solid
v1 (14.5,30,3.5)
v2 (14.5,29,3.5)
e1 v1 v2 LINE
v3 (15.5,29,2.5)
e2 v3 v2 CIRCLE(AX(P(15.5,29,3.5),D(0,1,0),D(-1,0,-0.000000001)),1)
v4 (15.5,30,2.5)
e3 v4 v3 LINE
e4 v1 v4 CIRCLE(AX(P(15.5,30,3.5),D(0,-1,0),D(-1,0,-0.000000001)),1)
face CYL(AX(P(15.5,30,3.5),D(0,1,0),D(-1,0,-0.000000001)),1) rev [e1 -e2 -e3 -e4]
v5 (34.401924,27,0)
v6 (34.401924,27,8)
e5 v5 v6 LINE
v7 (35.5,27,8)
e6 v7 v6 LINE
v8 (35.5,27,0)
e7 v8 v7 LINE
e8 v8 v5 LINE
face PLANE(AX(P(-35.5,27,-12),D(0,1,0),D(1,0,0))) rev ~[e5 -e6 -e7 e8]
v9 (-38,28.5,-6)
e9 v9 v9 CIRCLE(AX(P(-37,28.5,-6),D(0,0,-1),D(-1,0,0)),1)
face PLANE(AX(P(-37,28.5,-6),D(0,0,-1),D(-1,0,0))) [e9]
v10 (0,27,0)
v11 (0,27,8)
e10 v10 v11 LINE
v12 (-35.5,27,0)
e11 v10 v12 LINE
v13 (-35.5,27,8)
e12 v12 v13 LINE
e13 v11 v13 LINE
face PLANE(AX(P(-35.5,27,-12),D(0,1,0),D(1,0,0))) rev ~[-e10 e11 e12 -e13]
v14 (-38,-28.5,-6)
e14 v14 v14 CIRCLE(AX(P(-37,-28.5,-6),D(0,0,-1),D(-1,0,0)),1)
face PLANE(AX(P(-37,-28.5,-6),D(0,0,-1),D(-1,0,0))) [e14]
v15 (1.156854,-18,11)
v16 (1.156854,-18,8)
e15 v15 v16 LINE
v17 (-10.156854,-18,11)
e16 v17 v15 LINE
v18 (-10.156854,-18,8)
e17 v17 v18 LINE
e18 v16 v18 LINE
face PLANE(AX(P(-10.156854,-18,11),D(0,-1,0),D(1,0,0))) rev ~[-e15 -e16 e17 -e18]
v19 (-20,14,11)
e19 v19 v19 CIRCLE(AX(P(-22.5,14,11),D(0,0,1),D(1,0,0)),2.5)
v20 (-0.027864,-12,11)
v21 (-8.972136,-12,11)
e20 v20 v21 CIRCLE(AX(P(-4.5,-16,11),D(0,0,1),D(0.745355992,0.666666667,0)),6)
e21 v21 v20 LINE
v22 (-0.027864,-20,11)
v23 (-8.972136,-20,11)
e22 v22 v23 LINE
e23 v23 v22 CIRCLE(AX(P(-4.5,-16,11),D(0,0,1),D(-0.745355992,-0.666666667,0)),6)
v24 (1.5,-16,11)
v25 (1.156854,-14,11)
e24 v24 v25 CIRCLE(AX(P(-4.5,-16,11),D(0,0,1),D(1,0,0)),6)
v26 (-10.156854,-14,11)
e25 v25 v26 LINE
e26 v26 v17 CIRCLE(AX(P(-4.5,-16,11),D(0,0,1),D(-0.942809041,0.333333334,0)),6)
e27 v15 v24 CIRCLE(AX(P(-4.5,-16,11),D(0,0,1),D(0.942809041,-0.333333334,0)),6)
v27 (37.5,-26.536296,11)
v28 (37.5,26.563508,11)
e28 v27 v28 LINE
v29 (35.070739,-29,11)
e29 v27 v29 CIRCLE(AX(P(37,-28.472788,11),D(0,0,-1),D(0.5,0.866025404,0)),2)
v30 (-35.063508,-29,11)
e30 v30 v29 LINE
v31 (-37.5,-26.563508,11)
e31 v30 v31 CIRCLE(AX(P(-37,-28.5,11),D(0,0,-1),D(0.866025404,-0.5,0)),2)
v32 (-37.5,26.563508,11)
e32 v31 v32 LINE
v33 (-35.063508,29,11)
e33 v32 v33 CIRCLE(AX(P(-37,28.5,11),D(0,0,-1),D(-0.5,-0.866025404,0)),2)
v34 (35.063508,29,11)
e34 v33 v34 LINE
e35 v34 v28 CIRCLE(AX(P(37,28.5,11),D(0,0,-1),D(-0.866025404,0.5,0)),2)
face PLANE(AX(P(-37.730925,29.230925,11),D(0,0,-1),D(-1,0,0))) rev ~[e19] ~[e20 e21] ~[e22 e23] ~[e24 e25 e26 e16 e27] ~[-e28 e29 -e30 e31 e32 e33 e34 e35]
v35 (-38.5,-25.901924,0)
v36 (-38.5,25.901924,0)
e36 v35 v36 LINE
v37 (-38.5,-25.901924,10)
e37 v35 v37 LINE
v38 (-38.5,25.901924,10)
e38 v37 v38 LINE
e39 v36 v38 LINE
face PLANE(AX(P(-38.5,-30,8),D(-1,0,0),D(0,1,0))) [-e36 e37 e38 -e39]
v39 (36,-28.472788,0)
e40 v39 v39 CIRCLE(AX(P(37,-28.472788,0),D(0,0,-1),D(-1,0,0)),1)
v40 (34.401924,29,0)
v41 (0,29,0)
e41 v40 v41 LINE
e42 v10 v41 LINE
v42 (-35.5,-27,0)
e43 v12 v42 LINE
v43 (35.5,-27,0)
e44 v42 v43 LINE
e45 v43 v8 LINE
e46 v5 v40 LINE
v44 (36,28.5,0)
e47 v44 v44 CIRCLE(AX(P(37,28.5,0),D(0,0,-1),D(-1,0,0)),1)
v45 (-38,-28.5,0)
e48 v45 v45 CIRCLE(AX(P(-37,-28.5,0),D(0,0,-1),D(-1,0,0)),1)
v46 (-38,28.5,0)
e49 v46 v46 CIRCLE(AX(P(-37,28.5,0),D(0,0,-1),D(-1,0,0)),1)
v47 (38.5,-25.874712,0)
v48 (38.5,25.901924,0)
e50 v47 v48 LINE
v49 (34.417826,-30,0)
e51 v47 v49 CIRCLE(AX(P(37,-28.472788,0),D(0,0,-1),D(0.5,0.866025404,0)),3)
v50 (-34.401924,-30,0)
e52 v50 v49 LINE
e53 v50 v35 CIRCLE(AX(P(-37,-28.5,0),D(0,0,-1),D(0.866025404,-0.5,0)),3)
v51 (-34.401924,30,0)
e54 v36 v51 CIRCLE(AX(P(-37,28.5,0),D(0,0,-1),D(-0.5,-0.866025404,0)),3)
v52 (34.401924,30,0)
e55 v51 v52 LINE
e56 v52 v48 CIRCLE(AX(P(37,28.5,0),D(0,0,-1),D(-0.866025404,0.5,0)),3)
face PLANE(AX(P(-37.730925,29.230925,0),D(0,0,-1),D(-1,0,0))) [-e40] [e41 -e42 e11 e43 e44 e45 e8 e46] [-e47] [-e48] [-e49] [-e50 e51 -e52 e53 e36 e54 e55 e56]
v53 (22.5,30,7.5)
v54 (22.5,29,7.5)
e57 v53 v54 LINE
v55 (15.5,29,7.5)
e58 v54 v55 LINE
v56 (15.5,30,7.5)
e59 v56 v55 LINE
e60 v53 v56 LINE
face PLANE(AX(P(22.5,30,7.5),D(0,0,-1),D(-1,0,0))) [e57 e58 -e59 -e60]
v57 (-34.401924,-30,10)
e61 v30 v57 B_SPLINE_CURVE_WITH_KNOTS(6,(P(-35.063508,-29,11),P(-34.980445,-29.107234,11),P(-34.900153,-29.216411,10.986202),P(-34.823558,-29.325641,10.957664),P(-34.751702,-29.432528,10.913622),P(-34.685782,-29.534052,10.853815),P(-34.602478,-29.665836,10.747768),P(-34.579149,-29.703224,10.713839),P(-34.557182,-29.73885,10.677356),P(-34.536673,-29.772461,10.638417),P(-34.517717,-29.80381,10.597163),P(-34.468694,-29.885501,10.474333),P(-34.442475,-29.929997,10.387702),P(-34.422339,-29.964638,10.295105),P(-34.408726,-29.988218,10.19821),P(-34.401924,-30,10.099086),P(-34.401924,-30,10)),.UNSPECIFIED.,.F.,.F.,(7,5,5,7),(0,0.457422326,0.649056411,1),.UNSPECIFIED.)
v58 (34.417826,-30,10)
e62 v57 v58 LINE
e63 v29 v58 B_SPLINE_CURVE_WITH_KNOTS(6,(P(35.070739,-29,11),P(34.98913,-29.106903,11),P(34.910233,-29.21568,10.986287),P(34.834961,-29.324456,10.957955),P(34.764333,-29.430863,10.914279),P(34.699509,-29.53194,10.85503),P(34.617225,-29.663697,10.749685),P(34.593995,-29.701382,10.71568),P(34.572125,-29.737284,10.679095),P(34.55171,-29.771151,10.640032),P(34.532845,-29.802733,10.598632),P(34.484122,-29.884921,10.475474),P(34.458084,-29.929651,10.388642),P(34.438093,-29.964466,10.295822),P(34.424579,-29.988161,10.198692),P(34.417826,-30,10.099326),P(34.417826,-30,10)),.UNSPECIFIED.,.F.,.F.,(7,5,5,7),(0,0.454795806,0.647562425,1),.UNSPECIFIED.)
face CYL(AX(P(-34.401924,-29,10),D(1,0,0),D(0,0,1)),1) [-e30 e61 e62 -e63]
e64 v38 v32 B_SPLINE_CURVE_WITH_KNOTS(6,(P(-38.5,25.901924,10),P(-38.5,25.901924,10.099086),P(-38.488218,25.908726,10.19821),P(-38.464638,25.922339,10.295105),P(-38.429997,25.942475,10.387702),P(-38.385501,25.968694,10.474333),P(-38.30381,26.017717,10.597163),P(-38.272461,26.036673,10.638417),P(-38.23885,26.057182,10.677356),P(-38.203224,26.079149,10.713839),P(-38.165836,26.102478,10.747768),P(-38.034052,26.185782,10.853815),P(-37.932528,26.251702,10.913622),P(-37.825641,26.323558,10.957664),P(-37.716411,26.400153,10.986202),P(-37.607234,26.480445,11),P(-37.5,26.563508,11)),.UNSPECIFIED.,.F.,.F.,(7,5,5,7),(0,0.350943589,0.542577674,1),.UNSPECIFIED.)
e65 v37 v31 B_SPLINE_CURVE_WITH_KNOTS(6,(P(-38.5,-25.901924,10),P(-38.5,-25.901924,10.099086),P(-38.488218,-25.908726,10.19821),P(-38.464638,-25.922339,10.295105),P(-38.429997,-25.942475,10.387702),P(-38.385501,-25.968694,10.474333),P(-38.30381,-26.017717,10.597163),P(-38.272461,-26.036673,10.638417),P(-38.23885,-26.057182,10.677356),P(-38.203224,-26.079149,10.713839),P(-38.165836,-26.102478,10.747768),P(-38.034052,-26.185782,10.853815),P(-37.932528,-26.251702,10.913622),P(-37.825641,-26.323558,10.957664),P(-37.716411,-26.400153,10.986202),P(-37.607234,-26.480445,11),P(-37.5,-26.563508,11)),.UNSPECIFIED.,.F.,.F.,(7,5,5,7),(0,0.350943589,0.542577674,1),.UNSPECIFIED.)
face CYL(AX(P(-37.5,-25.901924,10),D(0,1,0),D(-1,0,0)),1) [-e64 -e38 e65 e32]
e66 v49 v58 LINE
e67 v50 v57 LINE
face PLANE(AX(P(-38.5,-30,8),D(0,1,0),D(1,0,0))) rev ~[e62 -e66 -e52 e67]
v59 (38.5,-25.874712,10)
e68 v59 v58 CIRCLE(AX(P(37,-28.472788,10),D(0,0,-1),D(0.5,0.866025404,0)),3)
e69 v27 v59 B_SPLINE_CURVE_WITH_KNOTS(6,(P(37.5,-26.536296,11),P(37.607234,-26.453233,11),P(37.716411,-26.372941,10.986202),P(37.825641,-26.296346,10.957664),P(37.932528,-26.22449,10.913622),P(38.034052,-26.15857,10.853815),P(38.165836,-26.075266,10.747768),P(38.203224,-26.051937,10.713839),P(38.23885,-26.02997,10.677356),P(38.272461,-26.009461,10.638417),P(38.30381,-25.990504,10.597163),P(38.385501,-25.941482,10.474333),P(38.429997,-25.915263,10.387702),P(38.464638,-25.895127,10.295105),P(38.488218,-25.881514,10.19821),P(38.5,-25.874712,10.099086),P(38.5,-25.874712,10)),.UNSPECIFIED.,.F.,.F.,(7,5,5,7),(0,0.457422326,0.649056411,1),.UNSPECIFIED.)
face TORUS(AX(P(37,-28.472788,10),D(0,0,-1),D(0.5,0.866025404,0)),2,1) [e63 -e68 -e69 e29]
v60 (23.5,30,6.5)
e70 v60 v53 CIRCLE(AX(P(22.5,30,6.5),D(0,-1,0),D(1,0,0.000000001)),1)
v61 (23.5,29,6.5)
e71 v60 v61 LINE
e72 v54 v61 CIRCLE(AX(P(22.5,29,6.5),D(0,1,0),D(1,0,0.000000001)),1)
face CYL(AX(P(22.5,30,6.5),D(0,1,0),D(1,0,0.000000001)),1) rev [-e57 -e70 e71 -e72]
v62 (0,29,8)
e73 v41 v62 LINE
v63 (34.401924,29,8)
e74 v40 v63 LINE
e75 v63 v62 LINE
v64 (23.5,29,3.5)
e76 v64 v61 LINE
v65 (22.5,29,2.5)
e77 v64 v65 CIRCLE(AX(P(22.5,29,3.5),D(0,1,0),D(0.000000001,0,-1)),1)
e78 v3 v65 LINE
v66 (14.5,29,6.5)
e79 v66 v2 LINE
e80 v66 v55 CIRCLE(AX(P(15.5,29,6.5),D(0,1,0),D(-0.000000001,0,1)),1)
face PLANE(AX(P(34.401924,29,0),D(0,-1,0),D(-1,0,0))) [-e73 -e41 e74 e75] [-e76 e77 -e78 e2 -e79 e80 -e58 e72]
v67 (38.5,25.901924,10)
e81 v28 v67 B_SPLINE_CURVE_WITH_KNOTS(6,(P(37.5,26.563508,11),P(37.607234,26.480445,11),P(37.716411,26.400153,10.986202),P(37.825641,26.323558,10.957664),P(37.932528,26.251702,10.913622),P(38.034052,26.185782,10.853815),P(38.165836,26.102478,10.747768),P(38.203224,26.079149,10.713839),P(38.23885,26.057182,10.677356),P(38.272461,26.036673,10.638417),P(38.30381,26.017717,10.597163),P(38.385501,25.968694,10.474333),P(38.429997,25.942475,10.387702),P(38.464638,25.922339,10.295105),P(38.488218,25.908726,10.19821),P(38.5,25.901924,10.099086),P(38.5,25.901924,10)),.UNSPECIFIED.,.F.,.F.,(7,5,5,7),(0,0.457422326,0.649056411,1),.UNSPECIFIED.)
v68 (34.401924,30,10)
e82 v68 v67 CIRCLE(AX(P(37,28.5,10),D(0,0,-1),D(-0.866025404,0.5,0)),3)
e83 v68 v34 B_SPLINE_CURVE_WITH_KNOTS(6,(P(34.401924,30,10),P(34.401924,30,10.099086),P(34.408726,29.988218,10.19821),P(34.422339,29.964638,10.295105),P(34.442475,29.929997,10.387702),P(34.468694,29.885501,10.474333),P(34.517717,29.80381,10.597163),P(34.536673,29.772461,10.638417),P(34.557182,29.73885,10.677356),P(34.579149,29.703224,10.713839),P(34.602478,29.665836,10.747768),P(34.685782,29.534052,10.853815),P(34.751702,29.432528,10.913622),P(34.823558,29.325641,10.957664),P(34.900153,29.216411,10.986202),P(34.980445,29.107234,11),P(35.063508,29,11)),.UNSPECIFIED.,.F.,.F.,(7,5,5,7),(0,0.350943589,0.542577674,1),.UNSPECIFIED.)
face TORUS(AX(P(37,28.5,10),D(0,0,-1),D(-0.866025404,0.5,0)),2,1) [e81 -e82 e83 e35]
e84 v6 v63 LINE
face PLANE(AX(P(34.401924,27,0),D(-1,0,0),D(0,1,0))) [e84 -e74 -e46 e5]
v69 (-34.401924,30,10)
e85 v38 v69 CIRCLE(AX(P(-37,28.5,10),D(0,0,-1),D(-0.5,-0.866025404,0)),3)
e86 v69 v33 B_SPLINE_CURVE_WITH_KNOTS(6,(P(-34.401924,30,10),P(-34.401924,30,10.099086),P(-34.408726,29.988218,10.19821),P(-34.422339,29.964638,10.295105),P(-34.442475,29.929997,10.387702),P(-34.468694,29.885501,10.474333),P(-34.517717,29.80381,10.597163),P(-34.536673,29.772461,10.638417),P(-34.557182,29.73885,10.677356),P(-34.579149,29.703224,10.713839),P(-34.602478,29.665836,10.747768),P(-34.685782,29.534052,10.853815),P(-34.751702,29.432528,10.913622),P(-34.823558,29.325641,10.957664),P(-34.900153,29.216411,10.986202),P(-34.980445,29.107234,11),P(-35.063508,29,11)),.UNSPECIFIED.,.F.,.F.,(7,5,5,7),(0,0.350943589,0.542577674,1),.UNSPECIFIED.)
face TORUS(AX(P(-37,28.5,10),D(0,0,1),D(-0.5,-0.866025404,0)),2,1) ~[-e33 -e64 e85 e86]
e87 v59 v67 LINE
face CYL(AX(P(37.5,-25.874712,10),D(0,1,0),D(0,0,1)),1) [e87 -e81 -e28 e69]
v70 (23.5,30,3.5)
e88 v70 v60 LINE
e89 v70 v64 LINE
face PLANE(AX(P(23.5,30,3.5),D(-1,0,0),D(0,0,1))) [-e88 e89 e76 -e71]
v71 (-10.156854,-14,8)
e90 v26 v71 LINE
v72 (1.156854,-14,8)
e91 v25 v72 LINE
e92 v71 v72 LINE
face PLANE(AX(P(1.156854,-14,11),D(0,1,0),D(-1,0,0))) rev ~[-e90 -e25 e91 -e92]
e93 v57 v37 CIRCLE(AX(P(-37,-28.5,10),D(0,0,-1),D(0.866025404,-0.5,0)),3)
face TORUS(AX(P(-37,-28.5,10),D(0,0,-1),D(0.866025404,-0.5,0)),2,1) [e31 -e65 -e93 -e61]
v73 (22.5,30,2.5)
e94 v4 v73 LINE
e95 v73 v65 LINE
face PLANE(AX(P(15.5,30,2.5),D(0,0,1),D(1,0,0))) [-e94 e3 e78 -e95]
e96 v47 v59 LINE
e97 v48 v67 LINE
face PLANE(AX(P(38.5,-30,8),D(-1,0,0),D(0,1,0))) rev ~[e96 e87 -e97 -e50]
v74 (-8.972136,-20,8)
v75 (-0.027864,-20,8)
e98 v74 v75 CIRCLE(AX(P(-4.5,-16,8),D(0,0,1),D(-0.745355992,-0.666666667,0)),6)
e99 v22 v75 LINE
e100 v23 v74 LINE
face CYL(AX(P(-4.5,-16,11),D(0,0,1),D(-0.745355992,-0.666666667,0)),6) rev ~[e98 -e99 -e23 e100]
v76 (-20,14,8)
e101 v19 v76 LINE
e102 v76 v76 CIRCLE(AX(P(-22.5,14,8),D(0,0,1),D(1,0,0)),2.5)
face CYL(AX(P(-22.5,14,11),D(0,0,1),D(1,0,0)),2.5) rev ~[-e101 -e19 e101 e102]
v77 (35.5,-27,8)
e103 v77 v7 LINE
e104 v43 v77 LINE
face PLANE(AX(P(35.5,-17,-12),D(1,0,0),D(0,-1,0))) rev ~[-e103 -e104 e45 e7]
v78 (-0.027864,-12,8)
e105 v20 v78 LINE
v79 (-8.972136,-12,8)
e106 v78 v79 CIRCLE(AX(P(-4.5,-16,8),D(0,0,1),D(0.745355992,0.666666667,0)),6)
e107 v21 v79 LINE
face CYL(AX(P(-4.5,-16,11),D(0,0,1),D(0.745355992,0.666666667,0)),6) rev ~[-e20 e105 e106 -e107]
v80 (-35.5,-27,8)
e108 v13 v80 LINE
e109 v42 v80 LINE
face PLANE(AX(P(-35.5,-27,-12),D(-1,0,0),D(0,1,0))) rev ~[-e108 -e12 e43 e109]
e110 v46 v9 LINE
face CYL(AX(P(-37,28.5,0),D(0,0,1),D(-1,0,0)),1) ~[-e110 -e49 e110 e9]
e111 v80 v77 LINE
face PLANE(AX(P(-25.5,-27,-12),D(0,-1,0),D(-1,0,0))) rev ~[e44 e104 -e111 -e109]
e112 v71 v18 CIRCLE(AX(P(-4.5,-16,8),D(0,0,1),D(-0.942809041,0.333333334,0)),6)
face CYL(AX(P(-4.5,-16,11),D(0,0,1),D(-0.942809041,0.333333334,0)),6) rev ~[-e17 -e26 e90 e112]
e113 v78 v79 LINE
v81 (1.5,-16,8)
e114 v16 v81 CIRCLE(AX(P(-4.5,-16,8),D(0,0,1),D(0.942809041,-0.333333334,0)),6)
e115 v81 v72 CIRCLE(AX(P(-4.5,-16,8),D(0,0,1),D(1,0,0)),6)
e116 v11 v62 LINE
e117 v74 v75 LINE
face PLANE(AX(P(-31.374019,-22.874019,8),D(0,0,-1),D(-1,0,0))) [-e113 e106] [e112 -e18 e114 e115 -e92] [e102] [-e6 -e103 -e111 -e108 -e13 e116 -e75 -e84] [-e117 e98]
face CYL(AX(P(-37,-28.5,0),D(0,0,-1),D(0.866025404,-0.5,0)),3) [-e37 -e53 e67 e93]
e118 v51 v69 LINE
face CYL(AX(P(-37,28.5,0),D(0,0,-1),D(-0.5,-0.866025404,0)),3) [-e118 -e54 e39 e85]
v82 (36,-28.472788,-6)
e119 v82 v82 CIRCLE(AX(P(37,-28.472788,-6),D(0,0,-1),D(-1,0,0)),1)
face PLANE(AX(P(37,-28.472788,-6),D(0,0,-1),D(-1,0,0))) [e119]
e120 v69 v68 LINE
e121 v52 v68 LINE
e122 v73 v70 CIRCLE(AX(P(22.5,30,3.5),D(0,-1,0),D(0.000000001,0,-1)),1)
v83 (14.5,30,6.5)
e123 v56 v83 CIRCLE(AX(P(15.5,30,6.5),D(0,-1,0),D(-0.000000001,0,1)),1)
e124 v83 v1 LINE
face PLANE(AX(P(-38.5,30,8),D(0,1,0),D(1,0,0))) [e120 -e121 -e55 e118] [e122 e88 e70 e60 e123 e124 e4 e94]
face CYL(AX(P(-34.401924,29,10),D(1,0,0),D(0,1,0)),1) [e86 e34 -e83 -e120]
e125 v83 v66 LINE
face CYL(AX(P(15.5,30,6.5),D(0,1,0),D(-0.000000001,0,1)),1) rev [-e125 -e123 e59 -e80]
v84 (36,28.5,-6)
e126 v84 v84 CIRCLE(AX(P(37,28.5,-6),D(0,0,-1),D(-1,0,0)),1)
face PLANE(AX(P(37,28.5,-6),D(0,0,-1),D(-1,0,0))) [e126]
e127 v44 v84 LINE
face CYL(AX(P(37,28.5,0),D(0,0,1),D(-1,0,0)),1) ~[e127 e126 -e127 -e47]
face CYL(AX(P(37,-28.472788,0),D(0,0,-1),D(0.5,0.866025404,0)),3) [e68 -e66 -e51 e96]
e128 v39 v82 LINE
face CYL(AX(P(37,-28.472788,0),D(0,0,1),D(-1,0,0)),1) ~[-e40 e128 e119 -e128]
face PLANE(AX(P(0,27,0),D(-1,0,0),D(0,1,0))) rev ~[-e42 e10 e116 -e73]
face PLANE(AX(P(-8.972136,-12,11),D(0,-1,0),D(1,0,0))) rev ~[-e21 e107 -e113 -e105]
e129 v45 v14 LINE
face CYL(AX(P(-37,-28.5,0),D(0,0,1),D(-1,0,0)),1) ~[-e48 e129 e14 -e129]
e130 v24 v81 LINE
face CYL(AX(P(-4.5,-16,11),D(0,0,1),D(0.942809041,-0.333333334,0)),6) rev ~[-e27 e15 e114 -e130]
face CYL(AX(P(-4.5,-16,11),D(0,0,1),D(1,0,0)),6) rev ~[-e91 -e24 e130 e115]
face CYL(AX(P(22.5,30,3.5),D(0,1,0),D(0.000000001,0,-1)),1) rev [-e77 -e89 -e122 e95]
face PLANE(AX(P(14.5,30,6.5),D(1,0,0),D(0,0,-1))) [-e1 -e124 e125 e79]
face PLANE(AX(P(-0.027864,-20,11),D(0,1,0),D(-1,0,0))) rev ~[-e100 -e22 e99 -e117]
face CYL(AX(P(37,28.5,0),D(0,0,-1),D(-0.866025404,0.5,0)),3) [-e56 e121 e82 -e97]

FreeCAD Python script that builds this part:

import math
import FreeCAD as App
import Part
import Sketcher
from FreeCAD import Vector


def edges_at(feature, points):
    """Names of the edges that pass closest to the given points."""
    edges = feature.Shape.Edges
    near = lambda p: min(range(len(edges)), key=lambda i: edges[i].distToShape(Part.Vertex(*p))[0])
    return sorted({f"Edge{near(p) + 1}" for p in points})


def add_polygon(sketch, points):
    """Adds a closed chain of lines whose ends are joined by coincident constraints."""
    first, n = sketch.GeometryCount, len(points)
    for a, b in zip(points, points[1:] + points[:1]):
        sketch.addGeometry(Part.LineSegment(App.Vector(*a, 0), App.Vector(*b, 0)), False)
    for i in range(n):
        sketch.addConstraint(Sketcher.Constraint("Coincident", first + i, 2, first + (i + 1) % n, 1))

doc = App.newDocument("Part")
params = doc.addObject("Spreadsheet::Sheet", "Params")
for row, (alias, value) in enumerate([
    ("sketch1_radius", "10 mm"),
    ("sketch1_diameter", "3.5 mm"),
    ("pad1_length", "8 mm"),
    ("pad1_length2", "12 mm"),
    ("sketch2_radius", "10 mm"),
    ("sketch2_diameter", "3.5 mm"),
    ("pad2_length", "8 mm"),
    ("pad2_length2", "12 mm"),
    ("sketch3_radius", "10 mm"),
    ("sketch3_diameter", "3.5 mm"),
    ("pad3_length", "8 mm"),
    ("pad3_length2", "12 mm"),
    ("sketch4_radius", "10 mm"),
    ("sketch4_diameter", "3.5 mm"),
    ("pad4_length", "8 mm"),
    ("pad4_length2", "12 mm"),
    ("sketch5_width", "77 mm"),
    ("sketch5_width2", "71 mm"),
    ("sketch5_height", "60 mm"),
    ("sketch5_height2", "54 mm"),
    ("pad5_length", "8 mm"),
    ("sketch6_width", "77 mm"),
    ("sketch6_height", "60 mm"),
    ("pad6_length", "3 mm"),
    ("sketch7_radius", "10 mm"),
    ("pocket1_length", "20 mm"),
    ("sketch8_radius", "1 mm"),
    ("sketch8_width", "7 mm"),
    ("sketch8_height", "3 mm"),
    ("pocket2_length", "13 mm"),
    ("sketch9_radius", "6 mm"),
    ("pocket3_length", "10 mm"),
    ("sketch10_diameter", "2 mm"),
    ("pad7_length", "6 mm"),
    ("pad7_length2", "7 mm"),
    ("fillet_radius", "1 mm"),
    ("sketch11_radius", "3 mm"),
    ("sketch11_radius2", "1 mm"),
    ("pad8_length", "11 mm"),
    ("fillet2_radius", "1 mm"),
    ("sketch12_diameter", "5 mm"),
    ("pocket4_length", "10 mm"),
    ("sketch13_height", "2 mm"),
    ("pocket5_length", "8 mm"),
], start=1):
    params.set(f"A{row}", alias)
    params.set(f"B{row}", "=" + value)
    params.setAlias(f"B{row}", alias)

body = doc.addObject("PartDesign::Body", "Body")

sketch1 = body.newObject("Sketcher::SketchObject", "Sketch")
sketch1.AttachmentSupport = (doc.getObject("XY_Plane"), [""])
sketch1.MapMode = "FlatFace"
sketch1.addGeometry(Part.LineSegment(Vector(-35.5, -27, 0), Vector(-25.5, -27, 0)), False)
sketch1.addGeometry(Part.ArcOfCircle(Part.Circle(Vector(-35.5, -27, 0), Vector(0, 0, 1), 10), math.radians(0), math.radians(90)), False)
sketch1.addGeometry(Part.LineSegment(Vector(-35.5, -17, 0), Vector(-35.5, -27, 0)), False)
sketch1.addGeometry(Part.Circle(Vector(-33, -23, 0), Vector(0, 0, 1), 1.8), False)
sketch1.addConstraint(Sketcher.Constraint("Coincident", 0, 2, 1, 1))
sketch1.addConstraint(Sketcher.Constraint("Coincident", 1, 2, 2, 1))
sketch1.addConstraint(Sketcher.Constraint("Coincident", 2, 2, 0, 1))
sketch1.addConstraint(Sketcher.Constraint("Horizontal", 0))
sketch1.addConstraint(Sketcher.Constraint("Vertical", 2))
sketch1.addConstraint(Sketcher.Constraint("Coincident", 2, 2, 1, 3))
sketch1.addConstraint(Sketcher.Constraint("Radius", 1, 10.0))
sketch1.addConstraint(Sketcher.Constraint("Diameter", 3, 3.5))
sketch1.addConstraint(Sketcher.Constraint("DistanceY", 1, 3, -1, 1, 27.0))
sketch1.addConstraint(Sketcher.Constraint("DistanceX", 3, 3, -1, 1, 33.0))
sketch1.addConstraint(Sketcher.Constraint("DistanceY", 3, 3, -1, 1, 23.0))
sketch1.addConstraint(Sketcher.Constraint("DistanceX", 1, 3, -1, 1, 35.5))
sketch1.setExpression("Constraints[6]", "Params.sketch1_radius")
sketch1.setExpression("Constraints[7]", "Params.sketch1_diameter")
pad1 = body.newObject("PartDesign::Pad", "Pad")
pad1.Profile = sketch1
pad1.Type = "TwoLengths"
pad1.setExpression("Length", "Params.pad1_length")
pad1.setExpression("Length2", "Params.pad1_length2")
body2 = doc.addObject("PartDesign::Body", "Body001")

sketch2 = body2.newObject("Sketcher::SketchObject", "Sketch001")
sketch2.AttachmentSupport = (doc.getObject("XY_Plane001"), [""])
sketch2.MapMode = "FlatFace"
sketch2.addGeometry(Part.LineSegment(Vector(35.5, 17, 0), Vector(35.5, 27, 0)), False)
sketch2.addGeometry(Part.LineSegment(Vector(35.5, 27, 0), Vector(25.5, 27, 0)), False)
sketch2.addGeometry(Part.ArcOfCircle(Part.Circle(Vector(35.5, 27, 0), Vector(0, 0, 1), 10), math.radians(180), math.radians(270)), False)
sketch2.addGeometry(Part.Circle(Vector(33, 21, 0), Vector(0, 0, 1), 1.8), False)
sketch2.addConstraint(Sketcher.Constraint("Coincident", 0, 2, 1, 1))
sketch2.addConstraint(Sketcher.Constraint("Coincident", 1, 2, 2, 1))
sketch2.addConstraint(Sketcher.Constraint("Coincident", 2, 2, 0, 1))
sketch2.addConstraint(Sketcher.Constraint("Vertical", 0))
sketch2.addConstraint(Sketcher.Constraint("Horizontal", 1))
sketch2.addConstraint(Sketcher.Constraint("Coincident", 0, 2, 2, 3))
sketch2.addConstraint(Sketcher.Constraint("Radius", 2, 10.0))
sketch2.addConstraint(Sketcher.Constraint("Diameter", 3, 3.5))
sketch2.addConstraint(Sketcher.Constraint("DistanceY", -1, 1, 2, 3, 27.0))
sketch2.addConstraint(Sketcher.Constraint("DistanceX", -1, 1, 3, 3, 33.0))
sketch2.addConstraint(Sketcher.Constraint("DistanceY", -1, 1, 3, 3, 21.0))
sketch2.addConstraint(Sketcher.Constraint("DistanceX", -1, 1, 2, 3, 35.5))
sketch2.setExpression("Constraints[6]", "Params.sketch2_radius")
sketch2.setExpression("Constraints[7]", "Params.sketch2_diameter")
pad2 = body2.newObject("PartDesign::Pad", "Pad001")
pad2.Profile = sketch2
pad2.Type = "TwoLengths"
pad2.setExpression("Length", "Params.pad2_length")
pad2.setExpression("Length2", "Params.pad2_length2")
body3 = doc.addObject("PartDesign::Body", "Body002")

sketch3 = body3.newObject("Sketcher::SketchObject", "Sketch002")
sketch3.AttachmentSupport = (doc.getObject("XY_Plane002"), [""])
sketch3.MapMode = "FlatFace"
sketch3.addGeometry(Part.LineSegment(Vector(-25.5, 27, 0), Vector(-35.5, 27, 0)), False)
sketch3.addGeometry(Part.LineSegment(Vector(-35.5, 27, 0), Vector(-35.5, 17, 0)), False)
sketch3.addGeometry(Part.ArcOfCircle(Part.Circle(Vector(-35.5, 27, 0), Vector(0, 0, 1), 10), math.radians(-90), math.radians(0)), False)
sketch3.addGeometry(Part.Circle(Vector(-33, 21, 0), Vector(0, 0, 1), 1.8), False)
sketch3.addConstraint(Sketcher.Constraint("Coincident", 0, 2, 1, 1))
sketch3.addConstraint(Sketcher.Constraint("Coincident", 1, 2, 2, 1))
sketch3.addConstraint(Sketcher.Constraint("Coincident", 2, 2, 0, 1))
sketch3.addConstraint(Sketcher.Constraint("Horizontal", 0))
sketch3.addConstraint(Sketcher.Constraint("Vertical", 1))
sketch3.addConstraint(Sketcher.Constraint("Coincident", 0, 2, 2, 3))
sketch3.addConstraint(Sketcher.Constraint("Radius", 2, 10.0))
sketch3.addConstraint(Sketcher.Constraint("Diameter", 3, 3.5))
sketch3.addConstraint(Sketcher.Constraint("DistanceY", -1, 1, 2, 3, 27.0))
sketch3.addConstraint(Sketcher.Constraint("DistanceX", 3, 3, -1, 1, 33.0))
sketch3.addConstraint(Sketcher.Constraint("DistanceY", -1, 1, 3, 3, 21.0))
sketch3.addConstraint(Sketcher.Constraint("DistanceX", 2, 3, -1, 1, 35.5))
sketch3.setExpression("Constraints[6]", "Params.sketch3_radius")
sketch3.setExpression("Constraints[7]", "Params.sketch3_diameter")
pad3 = body3.newObject("PartDesign::Pad", "Pad002")
pad3.Profile = sketch3
pad3.Type = "TwoLengths"
pad3.setExpression("Length", "Params.pad3_length")
pad3.setExpression("Length2", "Params.pad3_length2")
body4 = doc.addObject("PartDesign::Body", "Body003")

sketch4 = body4.newObject("Sketcher::SketchObject", "Sketch003")
sketch4.AttachmentSupport = (doc.getObject("XY_Plane003"), [""])
sketch4.MapMode = "FlatFace"
sketch4.addGeometry(Part.LineSegment(Vector(35.5, -27, 0), Vector(35.5, -17, 0)), False)
sketch4.addGeometry(Part.ArcOfCircle(Part.Circle(Vector(35.5, -27, 0), Vector(0, 0, 1), 10), math.radians(90), math.radians(180)), False)
sketch4.addGeometry(Part.LineSegment(Vector(25.5, -27, 0), Vector(35.5, -27, 0)), False)
sketch4.addGeometry(Part.Circle(Vector(33, -23, 0), Vector(0, 0, 1), 1.8), False)
sketch4.addConstraint(Sketcher.Constraint("Coincident", 0, 2, 1, 1))
sketch4.addConstraint(Sketcher.Constraint("Coincident", 1, 2, 2, 1))
sketch4.addConstraint(Sketcher.Constraint("Coincident", 2, 2, 0, 1))
sketch4.addConstraint(Sketcher.Constraint("Vertical", 0))
sketch4.addConstraint(Sketcher.Constraint("Horizontal", 2))
sketch4.addConstraint(Sketcher.Constraint("Coincident", 2, 2, 1, 3))
sketch4.addConstraint(Sketcher.Constraint("Radius", 1, 10.0))
sketch4.addConstraint(Sketcher.Constraint("Diameter", 3, 3.5))
sketch4.addConstraint(Sketcher.Constraint("DistanceY", 1, 3, -1, 1, 27.0))
sketch4.addConstraint(Sketcher.Constraint("DistanceX", -1, 1, 3, 3, 33.0))
sketch4.addConstraint(Sketcher.Constraint("DistanceY", 3, 3, -1, 1, 23.0))
sketch4.addConstraint(Sketcher.Constraint("DistanceX", -1, 1, 1, 3, 35.5))
sketch4.setExpression("Constraints[6]", "Params.sketch4_radius")
sketch4.setExpression("Constraints[7]", "Params.sketch4_diameter")
pad4 = body4.newObject("PartDesign::Pad", "Pad003")
pad4.Profile = sketch4
pad4.Type = "TwoLengths"
pad4.setExpression("Length", "Params.pad4_length")
pad4.setExpression("Length2", "Params.pad4_length2")
body.AllowCompound = True
doc.recompute()

boolean = body.newObject("PartDesign::Boolean", "Boolean")
boolean.Type = "Fuse"
boolean.addObjects([body2])
doc.recompute()

boolean2 = body.newObject("PartDesign::Boolean", "Boolean001")
boolean2.Type = "Fuse"
boolean2.addObjects([body3])
doc.recompute()

boolean3 = body.newObject("PartDesign::Boolean", "Boolean002")
boolean3.Type = "Fuse"
boolean3.addObjects([body4])

sketch5 = body.newObject("Sketcher::SketchObject", "Sketch004")
sketch5.AttachmentSupport = (doc.getObject("XY_Plane"), [""])
sketch5.MapMode = "FlatFace"
add_polygon(sketch5, [(-38, 30), (-38, -30), (38, -30), (38, 30)])
add_polygon(sketch5, [(36, -27), (-36, -27), (-36, 27), (36, 27)])
sketch5.addConstraint(Sketcher.Constraint("Vertical", 0))
sketch5.addConstraint(Sketcher.Constraint("Horizontal", 1))
sketch5.addConstraint(Sketcher.Constraint("Vertical", 2))
sketch5.addConstraint(Sketcher.Constraint("Horizontal", 3))
sketch5.addConstraint(Sketcher.Constraint("Horizontal", 4))
sketch5.addConstraint(Sketcher.Constraint("Vertical", 5))
sketch5.addConstraint(Sketcher.Constraint("Horizontal", 6))
sketch5.addConstraint(Sketcher.Constraint("Vertical", 7))
sketch5.addConstraint(Sketcher.Constraint("Symmetric", 0, 2, 2, 2, -1, 1))
sketch5.addConstraint(Sketcher.Constraint("Symmetric", 4, 2, 6, 2, -1, 1))
sketch5.addConstraint(Sketcher.Constraint("DistanceX", 1, 1, 1, 2, 77.0))
sketch5.addConstraint(Sketcher.Constraint("DistanceX", 4, 2, 4, 1, 71.0))
sketch5.addConstraint(Sketcher.Constraint("DistanceY", 0, 2, 0, 1, 60.0))
sketch5.addConstraint(Sketcher.Constraint("DistanceY", 5, 1, 5, 2, 54.0))
sketch5.setExpression("Constraints[18]", "Params.sketch5_width")
sketch5.setExpression("Constraints[19]", "Params.sketch5_width2")
sketch5.setExpression("Constraints[20]", "Params.sketch5_height")
sketch5.setExpression("Constraints[21]", "Params.sketch5_height2")
pad5 = body.newObject("PartDesign::Pad", "Pad004")
pad5.Profile = sketch5
pad5.setExpression("Length", "Params.pad5_length")

sketch6 = body.newObject("Sketcher::SketchObject", "Sketch005")
sketch6.AttachmentSupport = (doc.getObject("XY_Plane"), [""])
sketch6.MapMode = "FlatFace"
sketch6.AttachmentOffset = App.Placement(Vector(0, 0, 8), App.Rotation())
add_polygon(sketch6, [(-38, 30), (-38, -30), (38, -30), (38, 30)])
sketch6.addConstraint(Sketcher.Constraint("Vertical", 0))
sketch6.addConstraint(Sketcher.Constraint("Horizontal", 1))
sketch6.addConstraint(Sketcher.Constraint("Vertical", 2))
sketch6.addConstraint(Sketcher.Constraint("Horizontal", 3))
sketch6.addConstraint(Sketcher.Constraint("Symmetric", 0, 2, 2, 2, -1, 1))
sketch6.addConstraint(Sketcher.Constraint("DistanceX", 1, 1, 1, 2, 77.0))
sketch6.addConstraint(Sketcher.Constraint("DistanceY", 0, 2, 0, 1, 60.0))
sketch6.setExpression("Constraints[9]", "Params.sketch6_width")
sketch6.setExpression("Constraints[10]", "Params.sketch6_height")
pad6 = body.newObject("PartDesign::Pad", "Pad005")
pad6.Profile = sketch6
pad6.setExpression("Length", "Params.pad6_length")

sketch7 = body.newObject("Sketcher::SketchObject", "Sketch006")
sketch7.AttachmentSupport = (doc.getObject("XY_Plane"), [""])
sketch7.MapMode = "FlatFace"
sketch7.AttachmentOffset = App.Placement(Vector(0, 0, -12), App.Rotation())
sketch7.addGeometry(Part.LineSegment(Vector(36, -27, 0), Vector(26, -27, 0)), False)
sketch7.addGeometry(Part.ArcOfCircle(Part.Circle(Vector(36, -27, 0), Vector(0, 0, 1), 10), math.radians(90), math.radians(180)), False)
sketch7.addGeometry(Part.LineSegment(Vector(36, -17, 0), Vector(36, -27, 0)), False)
sketch7.addGeometry(Part.LineSegment(Vector(-36, -27, 0), Vector(-36, -17, 0)), False)
sketch7.addGeometry(Part.ArcOfCircle(Part.Circle(Vector(-36, -27, 0), Vector(0, 0, 1), 10), math.radians(0), math.radians(90)), False)
sketch7.addGeometry(Part.LineSegment(Vector(-26, -27, 0), Vector(-36, -27, 0)), False)
sketch7.addGeometry(Part.LineSegment(Vector(-36, 17, 0), Vector(-36, 27, 0)), False)
sketch7.addGeometry(Part.LineSegment(Vector(-36, 27, 0), Vector(-26, 27, 0)), False)
sketch7.addGeometry(Part.ArcOfCircle(Part.Circle(Vector(-36, 27, 0), Vector(0, 0, 1), 10), math.radians(-90), math.radians(0)), False)
sketch7.addGeometry(Part.LineSegment(Vector(26, 27, 0), Vector(36, 27, 0)), False)
sketch7.addGeometry(Part.LineSegment(Vector(36, 27, 0), Vector(36, 17, 0)), False)
sketch7.addGeometry(Part.ArcOfCircle(Part.Circle(Vector(36, 27, 0), Vector(0, 0, 1), 10), math.radians(180), math.radians(270)), False)
sketch7.addConstraint(Sketcher.Constraint("Coincident", 0, 2, 1, 2))
sketch7.addConstraint(Sketcher.Constraint("Coincident", 1, 1, 2, 1))
sketch7.addConstraint(Sketcher.Constraint("Coincident", 2, 2, 0, 1))
sketch7.addConstraint(Sketcher.Constraint("Coincident", 3, 2, 4, 2))
sketch7.addConstraint(Sketcher.Constraint("Coincident", 4, 1, 5, 1))
sketch7.addConstraint(Sketcher.Constraint("Coincident", 5, 2, 3, 1))
sketch7.addConstraint(Sketcher.Constraint("Coincident", 6, 2, 7, 1))
sketch7.addConstraint(Sketcher.Constraint("Coincident", 7, 2, 8, 2))
sketch7.addConstraint(Sketcher.Constraint("Coincident", 8, 1, 6, 1))
sketch7.addConstraint(Sketcher.Constraint("Coincident", 9, 2, 10, 1))
sketch7.addConstraint(Sketcher.Constraint("Coincident", 10, 2, 11, 2))
sketch7.addConstraint(Sketcher.Constraint("Coincident", 11, 1, 9, 1))
sketch7.addConstraint(Sketcher.Constraint("Horizontal", 0))
sketch7.addConstraint(Sketcher.Constraint("Vertical", 2))
sketch7.addConstraint(Sketcher.Constraint("Vertical", 3))
sketch7.addConstraint(Sketcher.Constraint("Horizontal", 5))
sketch7.addConstraint(Sketcher.Constraint("Vertical", 6))
sketch7.addConstraint(Sketcher.Constraint("Horizontal", 7))
sketch7.addConstraint(Sketcher.Constraint("Horizontal", 9))
sketch7.addConstraint(Sketcher.Constraint("Vertical", 10))
sketch7.addConstraint(Sketcher.Constraint("Coincident", 2, 2, 1, 3))
sketch7.addConstraint(Sketcher.Constraint("Coincident", 5, 2, 4, 3))
sketch7.addConstraint(Sketcher.Constraint("Coincident", 6, 2, 8, 3))
sketch7.addConstraint(Sketcher.Constraint("Coincident", 9, 2, 11, 3))
sketch7.addConstraint(Sketcher.Constraint("Equal", 1, 4))
sketch7.addConstraint(Sketcher.Constraint("Equal", 4, 8))
sketch7.addConstraint(Sketcher.Constraint("Equal", 8, 11))
sketch7.addConstraint(Sketcher.Constraint("Symmetric", 1, 3, 8, 3, -1, 1))
sketch7.addConstraint(Sketcher.Constraint("Symmetric", 4, 3, 11, 3, -1, 1))
sketch7.addConstraint(Sketcher.Constraint("Symmetric", 1, 3, 4, 3, -2))
sketch7.addConstraint(Sketcher.Constraint("Radius", 1, 10.0))
sketch7.addConstraint(Sketcher.Constraint("DistanceY", 1, 3, -1, 1, 27.0))
sketch7.addConstraint(Sketcher.Constraint("DistanceX", 4, 3, 1, 3, 71.0))
sketch7.setExpression("Constraints[30]", "Params.sketch7_radius")
pocket1 = body.newObject("PartDesign::Pocket", "Pocket")
pocket1.Profile = sketch7
pocket1.setExpression("Length", "Params.pocket1_length")
pocket1.Reversed = True

sketch8 = body.newObject("Sketcher::SketchObject", "Sketch007")
sketch8.AttachmentSupport = (doc.getObject("XZ_Plane"), [""])
sketch8.MapMode = "FlatFace"
sketch8.AttachmentOffset = App.Placement(Vector(0, 0, -30), App.Rotation())
sketch8.addGeometry(Part.LineSegment(Vector(15.5, 7.5, 0), Vector(22.5, 7.5, 0)), False)
sketch8.addGeometry(Part.ArcOfCircle(Part.Circle(Vector(22.5, 6.5, 0), Vector(0, 0, 1), 1), math.radians(0), math.radians(90)), False)
sketch8.addGeometry(Part.LineSegment(Vector(23.5, 6.5, 0), Vector(23.5, 3.5, 0)), False)
sketch8.addGeometry(Part.ArcOfCircle(Part.Circle(Vector(22.5, 3.5, 0), Vector(0, 0, 1), 1), math.radians(-90), math.radians(0)), False)
sketch8.addGeometry(Part.LineSegment(Vector(22.5, 2.5, 0), Vector(15.5, 2.5, 0)), False)
sketch8.addGeometry(Part.ArcOfCircle(Part.Circle(Vector(15.5, 3.5, 0), Vector(0, 0, 1), 1), math.radians(-180), math.radians(-90)), False)
sketch8.addGeometry(Part.LineSegment(Vector(14.5, 3.5, 0), Vector(14.5, 6.5, 0)), False)
sketch8.addGeometry(Part.ArcOfCircle(Part.Circle(Vector(15.5, 6.5, 0), Vector(0, 0, 1), 1), math.radians(90), math.radians(180)), False)
sketch8.addConstraint(Sketcher.Constraint("Tangent", 0, 2, 1, 2))
sketch8.addConstraint(Sketcher.Constraint("Tangent", 1, 1, 2, 1))
sketch8.addConstraint(Sketcher.Constraint("Tangent", 2, 2, 3, 2))
sketch8.addConstraint(Sketcher.Constraint("Tangent", 3, 1, 4, 1))
sketch8.addConstraint(Sketcher.Constraint("Tangent", 4, 2, 5, 2))
sketch8.addConstraint(Sketcher.Constraint("Tangent", 5, 1, 6, 1))
sketch8.addConstraint(Sketcher.Constraint("Tangent", 6, 2, 7, 2))
sketch8.addConstraint(Sketcher.Constraint("Tangent", 7, 1, 0, 1))
sketch8.addConstraint(Sketcher.Constraint("Horizontal", 0))
sketch8.addConstraint(Sketcher.Constraint("Vertical", 2))
sketch8.addConstraint(Sketcher.Constraint("Horizontal", 4))
sketch8.addConstraint(Sketcher.Constraint("Vertical", 6))
sketch8.addConstraint(Sketcher.Constraint("Equal", 1, 3))
sketch8.addConstraint(Sketcher.Constraint("Equal", 3, 5))
sketch8.addConstraint(Sketcher.Constraint("Equal", 5, 7))
sketch8.addConstraint(Sketcher.Constraint("Radius", 1, 1.0))
sketch8.addConstraint(Sketcher.Constraint("DistanceX", 0, 1, 0, 2, 7.0))
sketch8.addConstraint(Sketcher.Constraint("DistanceY", 2, 2, 2, 1, 3.0))
sketch8.addConstraint(Sketcher.Constraint("DistanceX", -1, 1, 1, 3, 22.5))
sketch8.addConstraint(Sketcher.Constraint("DistanceY", -1, 1, 1, 3, 6.5))
sketch8.setExpression("Constraints[15]", "Params.sketch8_radius")
sketch8.setExpression("Constraints[16]", "Params.sketch8_width")
sketch8.setExpression("Constraints[17]", "Params.sketch8_height")
pocket2 = body.newObject("PartDesign::Pocket", "Pocket001")
pocket2.Profile = sketch8
pocket2.setExpression("Length", "Params.pocket2_length")
pocket2.Reversed = True

sketch9 = body.newObject("Sketcher::SketchObject", "Sketch008")
sketch9.AttachmentSupport = (doc.getObject("XY_Plane"), [""])
sketch9.MapMode = "FlatFace"
sketch9.AttachmentOffset = App.Placement(Vector(0, 0, 11), App.Rotation())
sketch9.addGeometry(Part.ArcOfCircle(Part.Circle(Vector(-4.5, -16, 0), Vector(0, 0, 1), 6), math.radians(42), math.radians(138)), False)
sketch9.addGeometry(Part.LineSegment(Vector(-9, -12, 0), Vector(0, -12, 0)), False)
sketch9.addGeometry(Part.LineSegment(Vector(1.2, -14, 0), Vector(-10.2, -14, 0)), False)
sketch9.addGeometry(Part.ArcOfCircle(Part.Circle(Vector(-4.5, -16, 0), Vector(0, 0, 1), 6), math.radians(161), math.radians(199)), False)
sketch9.addGeometry(Part.LineSegment(Vector(-10.2, -18, 0), Vector(1.2, -18, 0)), False)
sketch9.addGeometry(Part.ArcOfCircle(Part.Circle(Vector(-4.5, -16, 0), Vector(0, 0, 1), 6), math.radians(-19.47), math.radians(0)), False)
sketch9.addGeometry(Part.ArcOfCircle(Part.Circle(Vector(-4.5, -16, 0), Vector(0, 0, 1), 6), math.radians(0), math.radians(19.47)), False)
sketch9.addGeometry(Part.LineSegment(Vector(0, -20, 0), Vector(-9, -20, 0)), False)
sketch9.addGeometry(Part.ArcOfCircle(Part.Circle(Vector(-4.5, -16, 0), Vector(0, 0, 1), 6), math.radians(-138), math.radians(-42)), False)
sketch9.addConstraint(Sketcher.Constraint("Coincident", 0, 1, 1, 2))
sketch9.addConstraint(Sketcher.Constraint("Coincident", 1, 1, 0, 2))
sketch9.addConstraint(Sketcher.Constraint("Coincident", 2, 2, 3, 1))
sketch9.addConstraint(Sketcher.Constraint("Coincident", 3, 2, 4, 1))
sketch9.addConstraint(Sketcher.Constraint("Coincident", 4, 2, 5, 1))
sketch9.addConstraint(Sketcher.Constraint("Tangent", 5, 2, 6, 1))
sketch9.addConstraint(Sketcher.Constraint("Coincident", 6, 2, 2, 1))
sketch9.addConstraint(Sketcher.Constraint("Coincident", 7, 1, 8, 2))
sketch9.addConstraint(Sketcher.Constraint("Coincident", 8, 1, 7, 2))
sketch9.addConstraint(Sketcher.Constraint("Horizontal", 1))
sketch9.addConstraint(Sketcher.Constraint("Horizontal", 2))
sketch9.addConstraint(Sketcher.Constraint("Horizontal", 4))
sketch9.addConstraint(Sketcher.Constraint("Horizontal", 7))
sketch9.addConstraint(Sketcher.Constraint("Coincident", 3, 3, 0, 3))
sketch9.addConstraint(Sketcher.Constraint("Coincident", 5, 3, 0, 3))
sketch9.addConstraint(Sketcher.Constraint("Coincident", 8, 3, 0, 3))
sketch9.addConstraint(Sketcher.Constraint("Equal", 0, 3))
sketch9.addConstraint(Sketcher.Constraint("Equal", 3, 5))
sketch9.addConstraint(Sketcher.Constraint("Equal", 5, 6))
sketch9.addConstraint(Sketcher.Constraint("Equal", 6, 8))
sketch9.addConstraint(Sketcher.Constraint("Horizontal", 8, 3, 5, 2))
sketch9.addConstraint(Sketcher.Constraint("Vertical", 2, 2, 3, 2))
sketch9.addConstraint(Sketcher.Constraint("Vertical", 0, 1, 7, 1))
sketch9.addConstraint(Sketcher.Constraint("Radius", 0, 6.0))
sketch9.addConstraint(Sketcher.Constraint("DistanceY", 0, 3, -1, 1, 16.0))
sketch9.addConstraint(Sketcher.Constraint("DistanceY", 0, 1, -1, 1, 12.0))
sketch9.addConstraint(Sketcher.Constraint("DistanceY", 2, 2, -1, 1, 14.0))
sketch9.addConstraint(Sketcher.Constraint("DistanceX", 0, 3, -1, 1, 4.5))
sketch9.setExpression("Constraints[23]", "Params.sketch9_radius")
pocket3 = body.newObject("PartDesign::Pocket", "Pocket002")
pocket3.Profile = sketch9
pocket3.setExpression("Length", "Params.pocket3_length")

sketch10 = body.newObject("Sketcher::SketchObject", "Sketch009")
sketch10.AttachmentSupport = (doc.getObject("XY_Plane"), [""])
sketch10.MapMode = "FlatFace"
sketch10.addGeometry(Part.Circle(Vector(37, 28.5, 0), Vector(0, 0, 1), 1), False)
sketch10.addGeometry(Part.Circle(Vector(-37, 28.5, 0), Vector(0, 0, 1), 1), False)
sketch10.addGeometry(Part.Circle(Vector(-37, -28.5, 0), Vector(0, 0, 1), 1), False)
sketch10.addGeometry(Part.Circle(Vector(37, -28.5, 0), Vector(0, 0, 1), 1), False)
sketch10.addConstraint(Sketcher.Constraint("Equal", 0, 1))
sketch10.addConstraint(Sketcher.Constraint("Equal", 1, 2))
sketch10.addConstraint(Sketcher.Constraint("Equal", 2, 3))
sketch10.addConstraint(Sketcher.Constraint("Symmetric", 0, 3, 2, 3, -1, 1))
sketch10.addConstraint(Sketcher.Constraint("Symmetric", 0, 3, 1, 3, -2))
sketch10.addConstraint(Sketcher.Constraint("Vertical", 0, 3, 3, 3))
sketch10.addConstraint(Sketcher.Constraint("Diameter", 0, 2.0))
sketch10.addConstraint(Sketcher.Constraint("DistanceX", -1, 1, 0, 3, 37.0))
sketch10.addConstraint(Sketcher.Constraint("DistanceY", 2, 3, 1, 3, 57.0))
sketch10.addConstraint(Sketcher.Constraint("DistanceY", 3, 3, -1, 1, 28.472788))
sketch10.setExpression("Constraints[6]", "Params.sketch10_diameter")
pad7 = body.newObject("PartDesign::Pad", "Pad006")
pad7.Profile = sketch10
pad7.Type = "TwoLengths"
pad7.setExpression("Length", "Params.pad7_length")
pad7.setExpression("Length2", "Params.pad7_length2")
pad7.Reversed = True
doc.recompute()

fillet = body.newObject("PartDesign::Fillet", "Fillet")
fillet.Base = (pad7, edges_at(pad7, [
    (-38.5, 30, 5.5),
    (38.5, 30, 5.5),
    (38.5, -30, 5.5),
    (-38.5, -30, 5.5),
]))
fillet.setExpression("Radius", "Params.fillet_radius")

sketch11 = body.newObject("Sketcher::SketchObject", "Sketch010")
sketch11.AttachmentSupport = (doc.getObject("XY_Plane"), [""])
sketch11.MapMode = "FlatFace"
sketch11.addGeometry(Part.LineSegment(Vector(-38.5, 29, 0), Vector(-38.5, 25.9, 0)), False)
sketch11.addGeometry(Part.ArcOfCircle(Part.Circle(Vector(-37, 28.5, 0), Vector(0, 0, 1), 3), math.radians(30), math.radians(240)), False)
sketch11.addGeometry(Part.LineSegment(Vector(-34.4, 30, 0), Vector(-37.5, 30, 0)), False)
sketch11.addGeometry(Part.ArcOfCircle(Part.Circle(Vector(-37.5, 29, 0), Vector(0, 0, 1), 1), math.radians(90), math.radians(180)), False)
sketch11.addGeometry(Part.LineSegment(Vector(-37.5, -30, 0), Vector(-34.4, -30, 0)), False)
sketch11.addGeometry(Part.ArcOfCircle(Part.Circle(Vector(-37, -28.5, 0), Vector(0, 0, 1), 3), math.radians(120), math.radians(330)), False)
sketch11.addGeometry(Part.LineSegment(Vector(-38.5, -25.9, 0), Vector(-38.5, -29, 0)), False)
sketch11.addGeometry(Part.ArcOfCircle(Part.Circle(Vector(-37.5, -29, 0), Vector(0, 0, 1), 1), math.radians(-180), math.radians(-90)), False)
sketch11.addGeometry(Part.LineSegment(Vector(38.5, -29, 0), Vector(38.5, -25.9, 0)), False)
sketch11.addGeometry(Part.ArcOfCircle(Part.Circle(Vector(37, -28.5, 0), Vector(0, 0, 1), 3), math.radians(-149), math.radians(60)), False)
sketch11.addGeometry(Part.LineSegment(Vector(34.4, -30, 0), Vector(37.5, -30, 0)), False)
sketch11.addGeometry(Part.ArcOfCircle(Part.Circle(Vector(37.5, -29, 0), Vector(0, 0, 1), 1), math.radians(-90), math.radians(0)), False)
sketch11.addGeometry(Part.LineSegment(Vector(37.5, 30, 0), Vector(34.4, 30, 0)), False)
sketch11.addGeometry(Part.ArcOfCircle(Part.Circle(Vector(37, 28.5, 0), Vector(0, 0, 1), 3), math.radians(-60), math.radians(150)), False)
sketch11.addGeometry(Part.LineSegment(Vector(38.5, 25.9, 0), Vector(38.5, 29, 0)), False)
sketch11.addGeometry(Part.ArcOfCircle(Part.Circle(Vector(37.5, 29, 0), Vector(0, 0, 1), 1), math.radians(0), math.radians(90)), False)
sketch11.addConstraint(Sketcher.Constraint("Coincident", 0, 2, 1, 2))
sketch11.addConstraint(Sketcher.Constraint("Coincident", 1, 1, 2, 1))
sketch11.addConstraint(Sketcher.Constraint("Tangent", 2, 2, 3, 1))
sketch11.addConstraint(Sketcher.Constraint("Tangent", 3, 2, 0, 1))
sketch11.addConstraint(Sketcher.Constraint("Coincident", 4, 2, 5, 2))
sketch11.addConstraint(Sketcher.Constraint("Coincident", 5, 1, 6, 1))
sketch11.addConstraint(Sketcher.Constraint("Tangent", 6, 2, 7, 1))
sketch11.addConstraint(Sketcher.Constraint("Tangent", 7, 2, 4, 1))
sketch11.addConstraint(Sketcher.Constraint("Coincident", 8, 2, 9, 2))
sketch11.addConstraint(Sketcher.Constraint("Coincident", 9, 1, 10, 1))
sketch11.addConstraint(Sketcher.Constraint("Tangent", 10, 2, 11, 1))
sketch11.addConstraint(Sketcher.Constraint("Tangent", 11, 2, 8, 1))
sketch11.addConstraint(Sketcher.Constraint("Coincident", 12, 2, 13, 2))
sketch11.addConstraint(Sketcher.Constraint("Coincident", 13, 1, 14, 1))
sketch11.addConstraint(Sketcher.Constraint("Tangent", 14, 2, 15, 1))
sketch11.addConstraint(Sketcher.Constraint("Tangent", 15, 2, 12, 1))
sketch11.addConstraint(Sketcher.Constraint("Vertical", 0))
sketch11.addConstraint(Sketcher.Constraint("Horizontal", 2))
sketch11.addConstraint(Sketcher.Constraint("Horizontal", 4))
sketch11.addConstraint(Sketcher.Constraint("Vertical", 6))
sketch11.addConstraint(Sketcher.Constraint("Vertical", 8))
sketch11.addConstraint(Sketcher.Constraint("Horizontal", 10))
sketch11.addConstraint(Sketcher.Constraint("Horizontal", 12))
sketch11.addConstraint(Sketcher.Constraint("Vertical", 14))
sketch11.addConstraint(Sketcher.Constraint("Equal", 1, 5))
sketch11.addConstraint(Sketcher.Constraint("Equal", 3, 7))
sketch11.addConstraint(Sketcher.Constraint("Equal", 5, 9))
sketch11.addConstraint(Sketcher.Constraint("Equal", 7, 11))
sketch11.addConstraint(Sketcher.Constraint("Equal", 9, 13))
sketch11.addConstraint(Sketcher.Constraint("Equal", 11, 15))
sketch11.addConstraint(Sketcher.Constraint("Symmetric", 3, 3, 11, 3, -1, 1))
sketch11.addConstraint(Sketcher.Constraint("Symmetric", 5, 3, 13, 3, -1, 1))
sketch11.addConstraint(Sketcher.Constraint("Symmetric", 7, 3, 15, 3, -1, 1))
sketch11.addConstraint(Sketcher.Constraint("Symmetric", 7, 3, 11, 3, -2))
sketch11.addConstraint(Sketcher.Constraint("Symmetric", 1, 3, 13, 3, -2))
sketch11.addConstraint(Sketcher.Constraint("Vertical", 9, 3, 13, 3))
sketch11.addConstraint(Sketcher.Constraint("Equal", 12, 0))
sketch11.addConstraint(Sketcher.Constraint("Radius", 1, 3.0))
sketch11.addConstraint(Sketcher.Constraint("Radius", 3, 1.0))
sketch11.addConstraint(Sketcher.Constraint("DistanceX", 1, 3, -1, 1, 37.0))
sketch11.addConstraint(Sketcher.Constraint("DistanceY", -1, 1, 3, 3, 29.0))
sketch11.addConstraint(Sketcher.Constraint("DistanceY", 5, 3, 1, 3, 57.0))
sketch11.addConstraint(Sketcher.Constraint("DistanceY", 8, 1, 8, 2, 3.125288))
sketch11.setExpression("Constraints[37]", "Params.sketch11_radius")
sketch11.setExpression("Constraints[38]", "Params.sketch11_radius2")
pad8 = body.newObject("PartDesign::Pad", "Pad007")
pad8.Profile = sketch11
pad8.setExpression("Length", "Params.pad8_length")
doc.recompute()

fillet2 = body.newObject("PartDesign::Fillet", "Fillet001")
fillet2.Base = (pad8, edges_at(pad8, [
    (-38.5, 0, 11),
    (-39.121, 30.621, 11),
    (0.008, -30, 11),
    (-39.121, -30.621, 11),
    (38.5, 0.014, 11),
    (39.132, -30.583, 11),
    (0, 30, 11),
    (39.121, 30.621, 11),
]))
fillet2.setExpression("Radius", "Params.fillet2_radius")

sketch12 = body.newObject("Sketcher::SketchObject", "Sketch011")
sketch12.AttachmentSupport = (doc.getObject("XY_Plane"), [""])
sketch12.MapMode = "FlatFace"
sketch12.AttachmentOffset = App.Placement(Vector(0, 0, 11), App.Rotation())
sketch12.addGeometry(Part.Circle(Vector(-22.5, 14, 0), Vector(0, 0, 1), 2.5), False)
sketch12.addConstraint(Sketcher.Constraint("Diameter", 0, 5.0))
sketch12.addConstraint(Sketcher.Constraint("DistanceY", -1, 1, 0, 3, 14.0))
sketch12.addConstraint(Sketcher.Constraint("DistanceX", 0, 3, -1, 1, 22.5))
sketch12.setExpression("Constraints[0]", "Params.sketch12_diameter")
pocket4 = body.newObject("PartDesign::Pocket", "Pocket003")
pocket4.Profile = sketch12
pocket4.setExpression("Length", "Params.pocket4_length")

sketch13 = body.newObject("Sketcher::SketchObject", "Sketch012")
sketch13.AttachmentSupport = (doc.getObject("XY_Plane"), [""])
sketch13.MapMode = "FlatFace"
add_polygon(sketch13, [(34.4, 29), (34.4, 27), (0, 27), (0, 29)])
sketch13.addConstraint(Sketcher.Constraint("Vertical", 0))
sketch13.addConstraint(Sketcher.Constraint("Horizontal", 1))
sketch13.addConstraint(Sketcher.Constraint("Vertical", 2))
sketch13.addConstraint(Sketcher.Constraint("Horizontal", 3))
sketch13.addConstraint(Sketcher.Constraint("PointOnObject", 1, 2, -2))
sketch13.addConstraint(Sketcher.Constraint("DistanceY", 0, 2, 0, 1, 2.0))
sketch13.addConstraint(Sketcher.Constraint("DistanceY", -1, 1, 0, 2, 27.0))
sketch13.addConstraint(Sketcher.Constraint("DistanceX", 1, 2, 1, 1, 34.401924))
sketch13.setExpression("Constraints[9]", "Params.sketch13_height")
pocket5 = body.newObject("PartDesign::Pocket", "Pocket004")
pocket5.Profile = sketch13
pocket5.setExpression("Length", "Params.pocket5_length")
pocket5.Reversed = True

doc.recompute()
